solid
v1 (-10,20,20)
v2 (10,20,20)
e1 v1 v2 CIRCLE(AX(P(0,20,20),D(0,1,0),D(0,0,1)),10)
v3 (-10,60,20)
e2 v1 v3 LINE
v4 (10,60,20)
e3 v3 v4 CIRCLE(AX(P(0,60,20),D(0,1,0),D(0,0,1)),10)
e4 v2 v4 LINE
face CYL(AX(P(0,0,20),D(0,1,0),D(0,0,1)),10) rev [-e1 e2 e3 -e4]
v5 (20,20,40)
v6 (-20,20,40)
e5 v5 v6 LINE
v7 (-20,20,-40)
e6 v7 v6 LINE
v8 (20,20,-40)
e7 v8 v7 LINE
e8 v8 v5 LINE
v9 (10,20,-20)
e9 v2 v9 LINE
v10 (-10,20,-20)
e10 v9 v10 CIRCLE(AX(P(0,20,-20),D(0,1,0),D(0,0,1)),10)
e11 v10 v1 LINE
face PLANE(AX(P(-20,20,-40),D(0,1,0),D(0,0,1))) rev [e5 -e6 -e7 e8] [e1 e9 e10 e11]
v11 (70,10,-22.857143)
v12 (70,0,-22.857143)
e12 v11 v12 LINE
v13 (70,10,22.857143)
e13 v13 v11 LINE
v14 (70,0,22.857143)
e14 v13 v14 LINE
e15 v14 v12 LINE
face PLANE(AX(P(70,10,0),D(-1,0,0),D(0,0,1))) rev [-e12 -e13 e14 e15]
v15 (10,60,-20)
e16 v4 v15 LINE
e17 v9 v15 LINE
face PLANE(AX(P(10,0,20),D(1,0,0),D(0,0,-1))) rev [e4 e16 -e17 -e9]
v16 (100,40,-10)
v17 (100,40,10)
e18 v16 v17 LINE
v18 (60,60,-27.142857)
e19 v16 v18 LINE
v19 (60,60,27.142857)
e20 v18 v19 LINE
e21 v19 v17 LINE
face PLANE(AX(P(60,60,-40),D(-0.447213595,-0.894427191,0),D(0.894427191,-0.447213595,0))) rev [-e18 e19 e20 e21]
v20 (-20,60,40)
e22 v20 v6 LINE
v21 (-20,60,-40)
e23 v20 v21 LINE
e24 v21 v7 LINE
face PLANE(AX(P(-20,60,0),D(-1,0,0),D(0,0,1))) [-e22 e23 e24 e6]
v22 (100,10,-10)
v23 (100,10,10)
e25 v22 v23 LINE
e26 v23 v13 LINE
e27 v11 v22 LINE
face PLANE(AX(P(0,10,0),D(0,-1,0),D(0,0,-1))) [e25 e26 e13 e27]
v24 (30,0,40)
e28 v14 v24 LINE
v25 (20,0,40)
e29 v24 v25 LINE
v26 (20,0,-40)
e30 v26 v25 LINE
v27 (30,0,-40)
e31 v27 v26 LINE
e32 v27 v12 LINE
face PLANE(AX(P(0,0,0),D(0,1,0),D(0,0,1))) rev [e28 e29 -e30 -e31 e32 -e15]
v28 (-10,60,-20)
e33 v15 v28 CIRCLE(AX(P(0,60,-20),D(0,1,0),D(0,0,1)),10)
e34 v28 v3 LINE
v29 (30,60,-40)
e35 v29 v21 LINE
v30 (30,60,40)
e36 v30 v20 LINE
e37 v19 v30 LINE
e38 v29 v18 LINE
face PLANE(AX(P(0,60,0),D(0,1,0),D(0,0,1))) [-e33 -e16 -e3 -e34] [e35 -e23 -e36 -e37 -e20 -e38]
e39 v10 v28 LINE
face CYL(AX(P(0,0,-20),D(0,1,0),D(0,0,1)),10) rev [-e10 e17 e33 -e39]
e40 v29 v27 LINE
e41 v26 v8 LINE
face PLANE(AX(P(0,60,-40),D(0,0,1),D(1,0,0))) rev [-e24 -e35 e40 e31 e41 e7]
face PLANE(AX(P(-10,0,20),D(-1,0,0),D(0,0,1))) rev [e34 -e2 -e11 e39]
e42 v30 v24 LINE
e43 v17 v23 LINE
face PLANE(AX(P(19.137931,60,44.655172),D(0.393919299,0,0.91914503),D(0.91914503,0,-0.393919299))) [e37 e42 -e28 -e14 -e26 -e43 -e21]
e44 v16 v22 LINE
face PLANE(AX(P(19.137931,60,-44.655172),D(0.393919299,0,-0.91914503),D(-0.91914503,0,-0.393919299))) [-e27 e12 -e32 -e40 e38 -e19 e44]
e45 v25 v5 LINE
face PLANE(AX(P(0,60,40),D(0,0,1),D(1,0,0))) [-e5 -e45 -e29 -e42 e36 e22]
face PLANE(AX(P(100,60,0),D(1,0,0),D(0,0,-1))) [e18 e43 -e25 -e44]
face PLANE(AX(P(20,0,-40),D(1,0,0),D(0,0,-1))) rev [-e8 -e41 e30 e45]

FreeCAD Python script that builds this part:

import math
import FreeCAD as App
import Part
import Sketcher

V = App.Vector

doc = App.newDocument("Part")
body = doc.addObject("PartDesign::Body", "Body")

sketch1 = doc.addObject("Sketcher::SketchObject", "Sketch")
body.addObject(sketch1)
sketch1.AttachmentSupport = (doc.XZ_Plane, [""])
sketch1.MapMode = "FlatFace"
sketch1.addGeometry([
    Part.LineSegment(V(-20, -40, 0), V(-20, 40, 0)),
    Part.LineSegment(V(-20, 40, 0), V(30, 40, 0)),
    Part.LineSegment(V(30, 40, 0), V(100, 10, 0)),
    Part.LineSegment(V(100, 10, 0), V(100, -10, 0)),
    Part.LineSegment(V(100, -10, 0), V(30, -40, 0)),
    Part.LineSegment(V(30, -40, 0), V(-20, -40, 0)),
], False)
sketch1.addConstraint([
    Sketcher.Constraint("Coincident", 0, 2, 1, 1),
    Sketcher.Constraint("Coincident", 1, 2, 2, 1),
    Sketcher.Constraint("Coincident", 2, 2, 3, 1),
    Sketcher.Constraint("Coincident", 3, 2, 4, 1),
    Sketcher.Constraint("Coincident", 4, 2, 5, 1),
    Sketcher.Constraint("Coincident", 5, 2, 0, 1),
    Sketcher.Constraint("Vertical", 0),
    Sketcher.Constraint("Horizontal", 1),
    Sketcher.Constraint("Vertical", 3),
    Sketcher.Constraint("Horizontal", 5),
    Sketcher.Constraint("Symmetric", 1, 2, 4, 2, -1),
    Sketcher.Constraint("Equal", 2, 4),
    Sketcher.Constraint("DistanceX", 1, 1, 1, 2, 50.0),
    Sketcher.Constraint("DistanceY", 0, 1, 0, 2, 80.0),
    Sketcher.Constraint("DistanceY", 3, 2, 3, 1, 20.0),
    Sketcher.Constraint("DistanceX", 0, 2, -1, 1, 20.0),
    Sketcher.Constraint("DistanceX", -1, 1, 2, 2, 100.0),
])
pad1 = doc.addObject("PartDesign::Pad", "Pad")
body.addObject(pad1)
pad1.Profile = sketch1
pad1.Length = 60
pad1.Reversed = True

sketch2 = doc.addObject("Sketcher::SketchObject", "Sketch001")
body.addObject(sketch2)
sketch2.AttachmentSupport = (doc.XY_Plane, [""])
sketch2.MapMode = "FlatFace"
sketch2.AttachmentOffset = App.Placement(V(0, 0, 40), App.Rotation())
sketch2.addGeometry([
    Part.LineSegment(V(-20, 20, 0), V(-20, 0, 0)),
    Part.LineSegment(V(-20, 0, 0), V(20, 0, 0)),
    Part.LineSegment(V(20, 0, 0), V(20, 20, 0)),
    Part.LineSegment(V(20, 20, 0), V(-20, 20, 0)),
], False)
sketch2.addConstraint([
    Sketcher.Constraint("Coincident", 0, 2, 1, 1),
    Sketcher.Constraint("Coincident", 1, 2, 2, 1),
    Sketcher.Constraint("Coincident", 2, 2, 3, 1),
    Sketcher.Constraint("Coincident", 3, 2, 0, 1),
    Sketcher.Constraint("Vertical", 0),
    Sketcher.Constraint("Horizontal", 1),
    Sketcher.Constraint("Vertical", 2),
    Sketcher.Constraint("Horizontal", 3),
    Sketcher.Constraint("Symmetric", 0, 2, 1, 2, -1, 1),
    Sketcher.Constraint("DistanceX", 1, 1, 1, 2, 40.0),
    Sketcher.Constraint("DistanceY", 0, 2, 0, 1, 20.0),
])
pocket1 = doc.addObject("PartDesign::Pocket", "Pocket")
body.addObject(pocket1)
pocket1.Profile = sketch2
pocket1.Type = "ThroughAll"

sketch3 = doc.addObject("Sketcher::SketchObject", "Sketch002")
body.addObject(sketch3)
sketch3.AttachmentSupport = (doc.XZ_Plane, [""])
sketch3.MapMode = "FlatFace"
sketch3.addGeometry([
    Part.LineSegment(V(100, 10, 0), V(70, 23, 0)),
    Part.LineSegment(V(70, 23, 0), V(70, -23, 0)),
    Part.LineSegment(V(70, -23, 0), V(100, -10, 0)),
    Part.LineSegment(V(100, -10, 0), V(100, 10, 0)),
], False)
sketch3.addConstraint([
    Sketcher.Constraint("Coincident", 0, 2, 1, 1),
    Sketcher.Constraint("Coincident", 1, 2, 2, 1),
    Sketcher.Constraint("Coincident", 2, 2, 3, 1),
    Sketcher.Constraint("Coincident", 3, 2, 0, 1),
    Sketcher.Constraint("Vertical", 1),
    Sketcher.Constraint("Vertical", 3),
    Sketcher.Constraint("Equal", 0, 2),
    Sketcher.Constraint("DistanceY", 3, 1, 3, 2, 20.0),
    Sketcher.Constraint("DistanceX", -1, 1, 0, 2, 70.0),
    Sketcher.Constraint("DistanceX", -1, 1, 2, 2, 100.0),
    Sketcher.Constraint("DistanceY", 2, 2, -1, 1, 10.0),
    Sketcher.Constraint("DistanceY", 1, 2, 1, 1, 45.714286),
])
pocket2 = doc.addObject("PartDesign::Pocket", "Pocket001")
body.addObject(pocket2)
pocket2.Profile = sketch3
pocket2.Length = 10

sketch4 = doc.addObject("Sketcher::SketchObject", "Sketch003")
body.addObject(sketch4)
sketch4.AttachmentSupport = (doc.XZ_Plane, [""])
sketch4.MapMode = "FlatFace"
sketch4.AttachmentOffset = App.Placement(V(0, 0, -60), App.Rotation())
sketch4.addGeometry([
    Part.LineSegment(V(-10, -20, 0), V(-10, 20, 0)),
    Part.ArcOfCircle(Part.Circle(V(0, 20, 0), V(0, 0, 1), 10), math.radians(0), math.radians(180)),
    Part.LineSegment(V(10, 20, 0), V(10, -20, 0)),
    Part.ArcOfCircle(Part.Circle(V(0, -20, 0), V(0, 0, 1), 10), math.radians(180), math.radians(360)),
], False)
sketch4.addConstraint([
    Sketcher.Constraint("Tangent", 0, 2, 1, 2),
    Sketcher.Constraint("Tangent", 1, 1, 2, 1),
    Sketcher.Constraint("Tangent", 2, 2, 3, 2),
    Sketcher.Constraint("Tangent", 3, 1, 0, 1),
    Sketcher.Constraint("Vertical", 0),
    Sketcher.Constraint("Vertical", 2),
    Sketcher.Constraint("Symmetric", 1, 3, 3, 3, -1, 1),
    Sketcher.Constraint("Radius", 1, 10.0),
    Sketcher.Constraint("DistanceY", 0, 1, 0, 2, 40.0),
])
pocket3 = doc.addObject("PartDesign::Pocket", "Pocket002")
body.addObject(pocket3)
pocket3.Profile = sketch4
pocket3.Type = "ThroughAll"
pocket3.Reversed = True

sketch5 = doc.addObject("Sketcher::SketchObject", "Sketch004")
body.addObject(sketch5)
sketch5.AttachmentSupport = (doc.XY_Plane, [""])
sketch5.MapMode = "FlatFace"
sketch5.AttachmentOffset = App.Placement(V(0, 0, 40), App.Rotation())
sketch5.addGeometry([
    Part.LineSegment(V(100, 60, 0), V(60, 60, 0)),
    Part.LineSegment(V(60, 60, 0), V(100, 40, 0)),
    Part.LineSegment(V(100, 40, 0), V(100, 60, 0)),
], False)
sketch5.addConstraint([
    Sketcher.Constraint("Coincident", 0, 2, 1, 1),
    Sketcher.Constraint("Coincident", 1, 2, 2, 1),
    Sketcher.Constraint("Coincident", 2, 2, 0, 1),
    Sketcher.Constraint("Horizontal", 0),
    Sketcher.Constraint("Vertical", 2),
    Sketcher.Constraint("DistanceX", 0, 2, 0, 1, 40.0),
    Sketcher.Constraint("DistanceY", 2, 1, 2, 2, 20.0),
    Sketcher.Constraint("DistanceX", -1, 1, 0, 2, 60.0),
    Sketcher.Constraint("DistanceY", -1, 1, 0, 2, 60.0),
])
pocket4 = doc.addObject("PartDesign::Pocket", "Pocket003")
body.addObject(pocket4)
pocket4.Profile = sketch5
pocket4.Type = "ThroughAll"

doc.recompute()
